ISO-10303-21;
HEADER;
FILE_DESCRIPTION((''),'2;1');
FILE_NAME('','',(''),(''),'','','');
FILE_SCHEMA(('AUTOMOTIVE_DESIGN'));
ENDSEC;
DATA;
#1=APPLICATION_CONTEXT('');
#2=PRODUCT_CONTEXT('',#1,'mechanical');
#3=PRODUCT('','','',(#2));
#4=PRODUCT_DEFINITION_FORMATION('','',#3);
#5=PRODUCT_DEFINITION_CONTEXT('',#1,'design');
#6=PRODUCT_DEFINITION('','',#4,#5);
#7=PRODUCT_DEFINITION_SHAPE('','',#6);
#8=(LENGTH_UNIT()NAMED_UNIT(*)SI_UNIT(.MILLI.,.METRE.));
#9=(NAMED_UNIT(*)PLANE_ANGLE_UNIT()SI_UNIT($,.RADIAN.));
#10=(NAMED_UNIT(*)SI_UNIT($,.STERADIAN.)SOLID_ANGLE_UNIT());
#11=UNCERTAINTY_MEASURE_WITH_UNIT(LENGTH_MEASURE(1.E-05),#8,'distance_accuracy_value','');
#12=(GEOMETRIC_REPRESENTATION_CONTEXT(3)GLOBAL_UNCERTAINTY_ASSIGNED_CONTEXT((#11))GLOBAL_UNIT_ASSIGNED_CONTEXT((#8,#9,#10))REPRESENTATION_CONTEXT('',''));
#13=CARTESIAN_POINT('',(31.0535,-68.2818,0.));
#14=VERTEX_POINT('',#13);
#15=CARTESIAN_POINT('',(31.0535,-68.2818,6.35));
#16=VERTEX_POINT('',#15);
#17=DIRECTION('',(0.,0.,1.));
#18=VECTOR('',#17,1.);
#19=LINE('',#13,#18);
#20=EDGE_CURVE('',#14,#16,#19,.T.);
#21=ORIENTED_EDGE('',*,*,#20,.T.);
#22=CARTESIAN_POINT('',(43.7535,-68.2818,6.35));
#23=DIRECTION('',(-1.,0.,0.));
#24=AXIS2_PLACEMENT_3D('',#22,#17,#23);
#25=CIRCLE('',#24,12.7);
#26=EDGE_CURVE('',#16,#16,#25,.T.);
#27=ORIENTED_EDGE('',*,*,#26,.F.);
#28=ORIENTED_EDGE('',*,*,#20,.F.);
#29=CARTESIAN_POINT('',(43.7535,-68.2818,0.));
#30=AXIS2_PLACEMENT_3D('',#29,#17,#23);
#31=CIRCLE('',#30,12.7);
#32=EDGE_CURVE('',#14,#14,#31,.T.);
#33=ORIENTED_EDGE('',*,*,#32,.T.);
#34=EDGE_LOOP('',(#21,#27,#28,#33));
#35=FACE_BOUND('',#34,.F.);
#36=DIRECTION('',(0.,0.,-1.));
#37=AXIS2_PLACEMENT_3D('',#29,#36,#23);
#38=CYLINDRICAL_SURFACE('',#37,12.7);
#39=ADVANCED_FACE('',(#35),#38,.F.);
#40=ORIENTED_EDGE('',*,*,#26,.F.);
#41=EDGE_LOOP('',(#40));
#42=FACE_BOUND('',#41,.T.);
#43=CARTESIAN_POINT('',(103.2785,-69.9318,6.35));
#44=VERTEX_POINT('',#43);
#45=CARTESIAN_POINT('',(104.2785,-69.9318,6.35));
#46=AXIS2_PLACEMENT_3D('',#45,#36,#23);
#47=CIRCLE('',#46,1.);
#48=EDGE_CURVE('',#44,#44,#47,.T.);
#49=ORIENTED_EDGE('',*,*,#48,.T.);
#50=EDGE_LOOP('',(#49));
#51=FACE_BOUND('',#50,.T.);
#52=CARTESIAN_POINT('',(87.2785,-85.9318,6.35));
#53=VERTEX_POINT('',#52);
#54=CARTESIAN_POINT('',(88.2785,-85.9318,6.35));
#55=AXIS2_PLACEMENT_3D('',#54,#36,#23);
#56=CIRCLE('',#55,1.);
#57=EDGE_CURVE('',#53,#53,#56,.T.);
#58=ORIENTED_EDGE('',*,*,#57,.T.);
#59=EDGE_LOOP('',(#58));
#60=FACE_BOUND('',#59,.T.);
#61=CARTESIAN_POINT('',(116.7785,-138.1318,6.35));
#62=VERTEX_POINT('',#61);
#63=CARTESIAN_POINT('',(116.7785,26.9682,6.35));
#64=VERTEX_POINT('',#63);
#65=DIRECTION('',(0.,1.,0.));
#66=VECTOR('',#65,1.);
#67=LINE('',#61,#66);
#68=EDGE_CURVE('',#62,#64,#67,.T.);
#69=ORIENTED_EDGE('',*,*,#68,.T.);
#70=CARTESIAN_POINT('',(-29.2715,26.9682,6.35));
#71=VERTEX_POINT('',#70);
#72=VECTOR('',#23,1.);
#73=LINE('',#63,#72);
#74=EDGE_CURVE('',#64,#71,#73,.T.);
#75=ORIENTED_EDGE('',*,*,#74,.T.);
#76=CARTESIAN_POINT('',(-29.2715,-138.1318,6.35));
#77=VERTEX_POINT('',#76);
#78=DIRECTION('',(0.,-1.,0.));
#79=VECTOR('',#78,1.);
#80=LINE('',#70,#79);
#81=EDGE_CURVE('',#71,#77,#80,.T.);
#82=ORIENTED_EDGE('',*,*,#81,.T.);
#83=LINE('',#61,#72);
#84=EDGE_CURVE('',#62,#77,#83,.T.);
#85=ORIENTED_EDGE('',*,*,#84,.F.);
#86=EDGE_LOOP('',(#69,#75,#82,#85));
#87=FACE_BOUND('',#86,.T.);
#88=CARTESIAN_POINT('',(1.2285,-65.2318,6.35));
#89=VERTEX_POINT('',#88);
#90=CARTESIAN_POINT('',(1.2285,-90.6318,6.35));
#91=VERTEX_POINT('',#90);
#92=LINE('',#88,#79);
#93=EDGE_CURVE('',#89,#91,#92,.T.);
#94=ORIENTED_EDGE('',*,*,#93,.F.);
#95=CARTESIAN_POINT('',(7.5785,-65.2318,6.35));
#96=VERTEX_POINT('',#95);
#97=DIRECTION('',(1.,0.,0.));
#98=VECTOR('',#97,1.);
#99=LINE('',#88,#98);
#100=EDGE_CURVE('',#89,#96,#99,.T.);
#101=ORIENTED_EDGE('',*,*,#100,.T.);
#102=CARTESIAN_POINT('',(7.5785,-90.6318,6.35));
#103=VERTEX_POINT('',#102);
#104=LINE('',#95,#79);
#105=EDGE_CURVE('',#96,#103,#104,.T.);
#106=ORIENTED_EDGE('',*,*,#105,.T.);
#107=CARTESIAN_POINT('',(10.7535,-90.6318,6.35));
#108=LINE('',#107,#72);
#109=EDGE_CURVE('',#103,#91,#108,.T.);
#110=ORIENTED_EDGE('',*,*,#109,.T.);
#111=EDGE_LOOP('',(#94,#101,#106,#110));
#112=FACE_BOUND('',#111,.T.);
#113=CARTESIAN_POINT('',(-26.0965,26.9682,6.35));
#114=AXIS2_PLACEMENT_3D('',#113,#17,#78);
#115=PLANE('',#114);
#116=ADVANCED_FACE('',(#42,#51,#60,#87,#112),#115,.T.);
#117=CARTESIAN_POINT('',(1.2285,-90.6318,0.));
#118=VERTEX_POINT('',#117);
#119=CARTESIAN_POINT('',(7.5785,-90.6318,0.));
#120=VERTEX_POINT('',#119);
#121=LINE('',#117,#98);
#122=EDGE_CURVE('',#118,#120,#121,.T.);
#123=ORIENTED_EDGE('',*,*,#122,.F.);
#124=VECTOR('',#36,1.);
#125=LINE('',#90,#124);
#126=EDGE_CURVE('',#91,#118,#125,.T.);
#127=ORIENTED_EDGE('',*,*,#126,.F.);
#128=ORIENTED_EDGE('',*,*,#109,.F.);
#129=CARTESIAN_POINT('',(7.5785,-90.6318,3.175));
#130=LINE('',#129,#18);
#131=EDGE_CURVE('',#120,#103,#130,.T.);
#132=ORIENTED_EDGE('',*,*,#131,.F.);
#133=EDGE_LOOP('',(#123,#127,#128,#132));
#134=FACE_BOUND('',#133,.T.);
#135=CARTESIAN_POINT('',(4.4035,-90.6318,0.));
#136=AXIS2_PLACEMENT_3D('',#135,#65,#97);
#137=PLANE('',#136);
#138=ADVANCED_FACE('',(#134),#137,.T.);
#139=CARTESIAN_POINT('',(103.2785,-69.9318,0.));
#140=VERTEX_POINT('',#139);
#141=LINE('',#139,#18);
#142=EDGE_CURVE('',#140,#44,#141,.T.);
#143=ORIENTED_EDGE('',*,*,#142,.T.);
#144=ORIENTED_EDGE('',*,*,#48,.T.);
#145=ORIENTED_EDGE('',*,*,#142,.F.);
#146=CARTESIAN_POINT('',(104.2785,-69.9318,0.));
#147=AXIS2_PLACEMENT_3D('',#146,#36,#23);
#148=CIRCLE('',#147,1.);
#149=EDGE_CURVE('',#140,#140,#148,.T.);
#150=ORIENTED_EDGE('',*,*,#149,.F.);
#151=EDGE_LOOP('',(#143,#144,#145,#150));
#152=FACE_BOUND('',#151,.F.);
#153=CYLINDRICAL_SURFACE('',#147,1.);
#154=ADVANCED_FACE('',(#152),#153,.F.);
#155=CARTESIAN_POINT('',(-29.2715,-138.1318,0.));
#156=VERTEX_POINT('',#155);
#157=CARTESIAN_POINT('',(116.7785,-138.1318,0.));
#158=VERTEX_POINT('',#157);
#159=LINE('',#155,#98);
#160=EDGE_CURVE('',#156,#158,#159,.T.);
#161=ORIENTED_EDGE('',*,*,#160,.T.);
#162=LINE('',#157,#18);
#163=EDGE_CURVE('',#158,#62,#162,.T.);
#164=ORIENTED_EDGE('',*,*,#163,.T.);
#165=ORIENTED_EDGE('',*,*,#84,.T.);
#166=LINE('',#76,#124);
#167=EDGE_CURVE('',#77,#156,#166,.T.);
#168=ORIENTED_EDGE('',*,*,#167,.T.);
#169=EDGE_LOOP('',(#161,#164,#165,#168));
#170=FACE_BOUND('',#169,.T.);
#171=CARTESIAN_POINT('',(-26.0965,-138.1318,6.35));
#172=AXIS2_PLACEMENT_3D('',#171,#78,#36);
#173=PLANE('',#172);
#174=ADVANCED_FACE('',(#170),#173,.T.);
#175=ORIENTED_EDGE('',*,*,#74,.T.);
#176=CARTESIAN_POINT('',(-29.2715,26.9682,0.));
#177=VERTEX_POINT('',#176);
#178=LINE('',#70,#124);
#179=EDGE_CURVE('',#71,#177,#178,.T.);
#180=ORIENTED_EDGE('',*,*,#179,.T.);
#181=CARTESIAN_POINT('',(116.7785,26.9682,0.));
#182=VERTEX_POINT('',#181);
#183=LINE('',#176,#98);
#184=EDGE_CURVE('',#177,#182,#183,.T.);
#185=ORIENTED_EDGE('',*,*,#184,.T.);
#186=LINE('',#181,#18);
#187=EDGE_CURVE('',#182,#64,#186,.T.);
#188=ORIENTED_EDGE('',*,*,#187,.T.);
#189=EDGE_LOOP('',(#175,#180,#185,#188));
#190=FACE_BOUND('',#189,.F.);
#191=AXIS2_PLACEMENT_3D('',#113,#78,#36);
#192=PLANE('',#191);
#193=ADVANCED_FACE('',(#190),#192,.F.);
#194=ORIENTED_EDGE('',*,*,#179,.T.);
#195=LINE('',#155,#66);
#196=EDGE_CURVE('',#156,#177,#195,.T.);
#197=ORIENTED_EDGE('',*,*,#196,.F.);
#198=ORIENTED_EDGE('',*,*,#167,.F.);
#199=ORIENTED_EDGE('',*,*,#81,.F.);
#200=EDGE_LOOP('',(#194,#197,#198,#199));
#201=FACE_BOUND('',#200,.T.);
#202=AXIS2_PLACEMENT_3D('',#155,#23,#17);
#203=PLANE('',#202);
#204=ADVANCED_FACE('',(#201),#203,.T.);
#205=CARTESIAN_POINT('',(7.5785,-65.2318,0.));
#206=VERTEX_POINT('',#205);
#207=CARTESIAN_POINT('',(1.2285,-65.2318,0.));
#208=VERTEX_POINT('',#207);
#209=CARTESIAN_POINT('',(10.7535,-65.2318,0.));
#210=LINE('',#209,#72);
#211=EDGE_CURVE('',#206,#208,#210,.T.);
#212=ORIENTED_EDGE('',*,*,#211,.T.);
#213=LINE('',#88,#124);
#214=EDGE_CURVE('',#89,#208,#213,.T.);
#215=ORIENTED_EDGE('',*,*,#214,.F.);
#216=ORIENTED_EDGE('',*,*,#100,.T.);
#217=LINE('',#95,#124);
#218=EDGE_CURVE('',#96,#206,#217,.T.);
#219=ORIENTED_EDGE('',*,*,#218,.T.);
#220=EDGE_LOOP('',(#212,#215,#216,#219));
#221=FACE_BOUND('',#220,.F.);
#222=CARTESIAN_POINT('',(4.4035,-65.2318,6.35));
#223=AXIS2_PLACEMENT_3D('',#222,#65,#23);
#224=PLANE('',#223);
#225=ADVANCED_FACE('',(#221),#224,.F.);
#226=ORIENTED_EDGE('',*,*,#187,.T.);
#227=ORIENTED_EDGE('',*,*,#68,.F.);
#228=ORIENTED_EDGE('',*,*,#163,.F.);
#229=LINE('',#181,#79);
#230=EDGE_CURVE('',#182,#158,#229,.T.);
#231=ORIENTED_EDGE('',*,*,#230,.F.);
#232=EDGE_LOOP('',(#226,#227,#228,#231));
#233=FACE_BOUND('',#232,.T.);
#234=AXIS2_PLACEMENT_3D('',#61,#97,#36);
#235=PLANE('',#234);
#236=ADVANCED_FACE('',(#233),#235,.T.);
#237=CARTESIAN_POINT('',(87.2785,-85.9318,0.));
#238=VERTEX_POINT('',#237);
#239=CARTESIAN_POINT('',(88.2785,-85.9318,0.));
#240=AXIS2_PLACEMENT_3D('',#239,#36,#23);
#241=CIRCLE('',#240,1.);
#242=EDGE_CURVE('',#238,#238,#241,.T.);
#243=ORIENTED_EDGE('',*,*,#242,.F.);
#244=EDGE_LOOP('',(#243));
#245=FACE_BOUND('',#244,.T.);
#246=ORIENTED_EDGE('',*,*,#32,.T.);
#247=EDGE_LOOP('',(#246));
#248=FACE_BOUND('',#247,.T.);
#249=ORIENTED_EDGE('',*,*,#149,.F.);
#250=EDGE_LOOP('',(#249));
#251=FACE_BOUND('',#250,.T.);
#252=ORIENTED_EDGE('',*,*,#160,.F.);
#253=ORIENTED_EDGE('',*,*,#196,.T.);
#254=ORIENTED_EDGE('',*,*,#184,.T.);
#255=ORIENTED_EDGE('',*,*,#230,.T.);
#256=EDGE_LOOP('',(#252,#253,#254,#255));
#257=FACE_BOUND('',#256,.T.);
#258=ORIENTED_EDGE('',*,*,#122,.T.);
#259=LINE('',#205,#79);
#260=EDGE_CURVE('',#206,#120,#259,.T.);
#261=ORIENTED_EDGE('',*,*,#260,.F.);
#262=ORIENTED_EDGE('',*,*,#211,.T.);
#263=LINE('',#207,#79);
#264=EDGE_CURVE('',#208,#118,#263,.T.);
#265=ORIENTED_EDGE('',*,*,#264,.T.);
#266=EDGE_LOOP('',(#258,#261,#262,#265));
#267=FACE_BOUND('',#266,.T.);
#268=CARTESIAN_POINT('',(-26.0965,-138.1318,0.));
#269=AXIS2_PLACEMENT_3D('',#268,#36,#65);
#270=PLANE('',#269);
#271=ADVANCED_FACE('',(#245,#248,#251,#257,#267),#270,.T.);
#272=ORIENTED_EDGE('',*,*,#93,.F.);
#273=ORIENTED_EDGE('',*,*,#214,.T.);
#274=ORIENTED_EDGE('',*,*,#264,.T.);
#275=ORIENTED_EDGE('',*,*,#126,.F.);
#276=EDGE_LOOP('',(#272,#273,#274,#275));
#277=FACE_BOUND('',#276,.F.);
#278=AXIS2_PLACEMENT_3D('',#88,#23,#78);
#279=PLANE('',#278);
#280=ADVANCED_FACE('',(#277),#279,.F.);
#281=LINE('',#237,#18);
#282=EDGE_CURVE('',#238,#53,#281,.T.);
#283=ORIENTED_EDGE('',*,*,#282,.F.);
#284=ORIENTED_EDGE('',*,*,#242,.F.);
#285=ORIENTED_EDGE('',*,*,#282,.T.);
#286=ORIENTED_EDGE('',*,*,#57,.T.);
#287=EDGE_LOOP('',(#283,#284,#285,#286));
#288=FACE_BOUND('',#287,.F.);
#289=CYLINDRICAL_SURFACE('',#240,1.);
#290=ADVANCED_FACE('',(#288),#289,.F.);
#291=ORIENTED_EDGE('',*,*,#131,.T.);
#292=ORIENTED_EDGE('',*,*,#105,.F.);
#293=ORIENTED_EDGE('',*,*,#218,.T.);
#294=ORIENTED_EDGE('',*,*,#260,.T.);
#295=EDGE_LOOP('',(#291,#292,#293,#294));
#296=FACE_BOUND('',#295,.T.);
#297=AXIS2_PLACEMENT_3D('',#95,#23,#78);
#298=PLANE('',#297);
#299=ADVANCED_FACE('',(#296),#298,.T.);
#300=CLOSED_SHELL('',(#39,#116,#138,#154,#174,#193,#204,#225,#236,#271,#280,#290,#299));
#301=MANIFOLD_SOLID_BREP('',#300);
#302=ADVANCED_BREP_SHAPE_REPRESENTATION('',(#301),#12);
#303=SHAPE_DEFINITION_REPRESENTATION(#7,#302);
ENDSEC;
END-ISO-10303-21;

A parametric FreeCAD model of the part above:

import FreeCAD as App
import Part
import Sketcher

V = App.Vector
Q = App.Units.Quantity


def add_polygon(sketch, points):
    """Adds a closed chain of lines whose ends are joined by coincident constraints."""
    first, n = sketch.GeometryCount, len(points)
    for a, b in zip(points, points[1:] + points[:1]):
        sketch.addGeometry(Part.LineSegment(App.Vector(*a, 0), App.Vector(*b, 0)), False)
    for i in range(n):
        sketch.addConstraint(Sketcher.Constraint("Coincident", first + i, 2, first + (i + 1) % n, 1))

doc = App.newDocument("Part")
body = doc.addObject("PartDesign::Body", "Body")

# Sketch on XY plane
sketch1 = body.newObject("Sketcher::SketchObject", "Sketch")
sketch1.AttachmentSupport = (doc.getObject("XY_Plane"), [""])
sketch1.MapMode = "FlatFace"
add_polygon(sketch1, [(107, 14), (-20, 14), (-20, -113), (107, -113)])  # lines 0-3
sketch1.addConstraint([
    Sketcher.Constraint("Horizontal", 0),
    Sketcher.Constraint("Vertical", 1),
    Sketcher.Constraint("Horizontal", 2),
    Sketcher.Constraint("Vertical", 3),
    Sketcher.Constraint("Equal", 2, 1),
    Sketcher.Constraint("DistanceX", 0, 2, 0, 1, Q("5 in")),
    Sketcher.Constraint("DistanceX", 0, 2, -1, 1, Q("19.7465 mm")),
    Sketcher.Constraint("DistanceY", -1, 1, 0, 2, Q("14.2682 mm")),
])
pad1 = body.newObject("PartDesign::Pad", "Pad")
pad1.Profile = sketch1
pad1.Length = Q("0.25 in")

# Sketch on XY plane
sketch2 = body.newObject("Sketcher::SketchObject", "Sketch001")
sketch2.AttachmentSupport = (doc.getObject("XY_Plane"), [""])
sketch2.MapMode = "FlatFace"
sketch2.AttachmentOffset = App.Placement(V(0, 0, 0.25 * 25.4), App.Rotation())
add_polygon(sketch2, [(113, -62), (73, -62), (73, -94), (113, -94)])  # lines 0-3
sketch2.addConstraint([
    Sketcher.Constraint("Horizontal", 0),
    Sketcher.Constraint("Vertical", 1),
    Sketcher.Constraint("Horizontal", 2),
    Sketcher.Constraint("Vertical", 3),
    Sketcher.Constraint("DistanceX", 0, 2, 0, 1, Q("1.5748 in")),
    Sketcher.Constraint("DistanceY", 1, 2, 1, 1, Q("32 mm")),
    Sketcher.Constraint("DistanceX", -1, 1, 0, 2, Q("2.8781 in")),
    Sketcher.Constraint("DistanceY", 1, 2, -1, 1, Q("3.6981 in")),
])
pad2 = body.newObject("PartDesign::Pad", "Pad001")
pad2.Profile = sketch2
pad2.Length = Q("0.25 in")

# Sketch on YZ plane
sketch3 = body.newObject("Sketcher::SketchObject", "Sketch002")
sketch3.AttachmentSupport = (doc.getObject("YZ_Plane"), [""])
sketch3.MapMode = "FlatFace"
sketch3.AttachmentOffset = App.Placement(V(0, 0, 107.2535), App.Rotation())
add_polygon(sketch3, [(14, 0), (14, 6), (-113, 6), (-113, 0)])  # lines 0-3
sketch3.addConstraint([
    Sketcher.Constraint("Vertical", 0),
    Sketcher.Constraint("Horizontal", 1),
    Sketcher.Constraint("Vertical", 2),
    Sketcher.Constraint("Horizontal", 3),
    Sketcher.Constraint("PointOnObject", 2, 2, -1),
    Sketcher.Constraint("DistanceX", 1, 2, 1, 1, Q("5 in")),
    Sketcher.Constraint("DistanceY", 0, 1, 0, 2, Q("0.25 in")),
    Sketcher.Constraint("DistanceX", -1, 1, 0, 2, Q("14.2682 mm")),
])
pad3 = body.newObject("PartDesign::Pad", "Pad002")
pad3.Profile = sketch3
pad3.Length = Q("0.5 in")

# Sketch on YZ plane
sketch4 = body.newObject("Sketcher::SketchObject", "Sketch003")
sketch4.AttachmentSupport = (doc.getObject("YZ_Plane"), [""])
sketch4.MapMode = "FlatFace"
sketch4.AttachmentOffset = App.Placement(V(0, 0, -19.7465), App.Rotation())
add_polygon(sketch4, [(-113, 0), (-113, 6), (14, 6), (14, 0)])  # lines 0-3
sketch4.addConstraint([
    Sketcher.Constraint("Vertical", 0),
    Sketcher.Constraint("Horizontal", 1),
    Sketcher.Constraint("Vertical", 2),
    Sketcher.Constraint("Horizontal", 3),
    Sketcher.Constraint("PointOnObject", 2, 2, -1),
    Sketcher.Constraint("DistanceX", 1, 1, 1, 2, Q("5 in")),
    Sketcher.Constraint("DistanceY", 0, 1, 0, 2, Q("0.25 in")),
    Sketcher.Constraint("DistanceX", 0, 2, -1, 1, Q("112.7318 mm")),
])
pad4 = body.newObject("PartDesign::Pad", "Pad003")
pad4.Profile = sketch4
pad4.Length = Q("0.5 in")
pad4.Reversed = True

# Sketch on XY plane
sketch5 = body.newObject("Sketcher::SketchObject", "Sketch004")
sketch5.AttachmentSupport = (doc.getObject("XY_Plane"), [""])
sketch5.MapMode = "FlatFace"
sketch5.AttachmentOffset = App.Placement(V(0, 0, 0.25 * 25.4), App.Rotation())
add_polygon(sketch5, [(14, -87), (14, -62), (8, -62), (8, -87)])  # lines 0-3
sketch5.addConstraint([
    Sketcher.Constraint("Vertical", 0),
    Sketcher.Constraint("Horizontal", 1),
    Sketcher.Constraint("Vertical", 2),
    Sketcher.Constraint("Horizontal", 3),
    Sketcher.Constraint("DistanceY", 0, 1, 0, 2, Q("1 in")),
    Sketcher.Constraint("DistanceX", 1, 2, 1, 1, Q("0.25 in")),
    Sketcher.Constraint("DistanceX", -1, 1, 0, 2, Q("14.4035 mm")),
    Sketcher.Constraint("DistanceY", 0, 2, -1, 1, Q("61.9318 mm")),
])
pocket1 = body.newObject("PartDesign::Pocket", "Pocket")
pocket1.Profile = sketch5
pocket1.Length = Q("0.5 in")

# Sketch on XY plane
sketch6 = body.newObject("Sketcher::SketchObject", "Sketch005")
sketch6.AttachmentSupport = (doc.getObject("XY_Plane"), [""])
sketch6.MapMode = "FlatFace"
sketch6.AttachmentOffset = App.Placement(V(0, 0, 0.25 * 25.4), App.Rotation())
add_polygon(sketch6, [(113, -94), (120, -94), (120, -62), (113, -62)])  # lines 0-3
sketch6.addConstraint([
    Sketcher.Constraint("Horizontal", 0),
    Sketcher.Constraint("Vertical", 1),
    Sketcher.Constraint("Horizontal", 2),
    Sketcher.Constraint("Vertical", 3),
    Sketcher.Constraint("DistanceX", 0, 1, 0, 2, Q("6.85 mm")),
    Sketcher.Constraint("DistanceY", 1, 1, 1, 2, Q("32 mm")),
    Sketcher.Constraint("DistanceY", 0, 2, -1, 1, Q("3.6981 in")),
    Sketcher.Constraint("DistanceX", -1, 1, 2, 2, Q("4.4529 in")),
])
pocket2 = body.newObject("PartDesign::Pocket", "Pocket001")
pocket2.Profile = sketch6
pocket2.Length = Q("0.5 in")

# Sketch on XY plane
sketch7 = body.newObject("Sketcher::SketchObject", "Sketch006")
sketch7.AttachmentSupport = (doc.getObject("XY_Plane"), [""])
sketch7.MapMode = "FlatFace"
sketch7.AttachmentOffset = App.Placement(V(0, 0, 0.5 * 25.4), App.Rotation())
add_polygon(sketch7, [(113, -62), (73, -62), (73, -94), (113, -94)])  # lines 0-3
sketch7.addConstraint([
    Sketcher.Constraint("Horizontal", 0),
    Sketcher.Constraint("Vertical", 1),
    Sketcher.Constraint("Horizontal", 2),
    Sketcher.Constraint("Vertical", 3),
    Sketcher.Constraint("DistanceX", 0, 2, 0, 1, Q("1.5748 in")),
    Sketcher.Constraint("DistanceY", 1, 2, 1, 1, Q("32 mm")),
    Sketcher.Constraint("DistanceX", -1, 1, 0, 2, Q("2.8781 in")),
    Sketcher.Constraint("DistanceY", 1, 2, -1, 1, Q("3.6981 in")),
])
pocket3 = body.newObject("PartDesign::Pocket", "Pocket002")
pocket3.Profile = sketch7
pocket3.Length = Q("0.25 in")

# Sketch on XY plane
sketch8 = body.newObject("Sketcher::SketchObject", "Sketch007")
sketch8.AttachmentSupport = (doc.getObject("XY_Plane"), [""])
sketch8.MapMode = "FlatFace"
sketch8.AttachmentOffset = App.Placement(V(0, 0, 0.25 * 25.4), App.Rotation())
add_polygon(sketch8, [(8.1, -87.3), (8.1, -61.9), (4.4, -61.9), (4.4, -87.3)])  # lines 0-3
sketch8.addConstraint([
    Sketcher.Constraint("Vertical", 0),
    Sketcher.Constraint("Horizontal", 1),
    Sketcher.Constraint("Vertical", 2),
    Sketcher.Constraint("Horizontal", 3),
    Sketcher.Constraint("DistanceY", 0, 1, 0, 2, Q("1 in")),
    Sketcher.Constraint("DistanceX", 1, 2, 1, 1, Q("0.1437 in")),
    Sketcher.Constraint("DistanceX", -1, 1, 0, 2, Q("8.0535 mm")),
    Sketcher.Constraint("DistanceY", 0, 2, -1, 1, Q("61.9318 mm")),
])
pocket4 = body.newObject("PartDesign::Pocket", "Pocket003")
pocket4.Profile = sketch8
pocket4.Length = Q("0.25 in")

# Sketch on XY plane
sketch9 = body.newObject("Sketcher::SketchObject", "Sketch008")
sketch9.AttachmentSupport = (doc.getObject("XY_Plane"), [""])
sketch9.MapMode = "FlatFace"
sketch9.AttachmentOffset = App.Placement(V(0, 0, 0.25 * 25.4), App.Rotation())
add_polygon(sketch9, [(14.4, -61.9), (10.8, -61.9), (10.8, -87.3), (14.4, -87.3)])  # lines 0-3
sketch9.addConstraint([
    Sketcher.Constraint("Horizontal", 0),
    Sketcher.Constraint("Vertical", 1),
    Sketcher.Constraint("Horizontal", 2),
    Sketcher.Constraint("Vertical", 3),
    Sketcher.Constraint("DistanceY", 1, 2, 1, 1, Q("1 in")),
    Sketcher.Constraint("DistanceX", 0, 2, 0, 1, Q("0.1437 in")),
    Sketcher.Constraint("DistanceX", -1, 1, 0, 2, Q("10.7535 mm")),
    Sketcher.Constraint("DistanceY", 0, 2, -1, 1, Q("61.9318 mm")),
])
pad5 = body.newObject("PartDesign::Pad", "Pad004")
pad5.Profile = sketch9
pad5.Length = Q("0.25 in")
pad5.Reversed = True

# Sketch on XY plane
sketch10 = body.newObject("Sketcher::SketchObject", "Sketch009")
sketch10.AttachmentSupport = (doc.getObject("XY_Plane"), [""])
sketch10.MapMode = "FlatFace"
sketch10.addGeometry([
    Part.Circle(V(101.1, -69.9, 0), V(0, 0, 1), 1),
    Part.Circle(V(85.1, -85.9, 0), V(0, 0, 1), 1),
], False)
sketch10.addConstraint([
    Sketcher.Constraint("Equal", 0, 1),
    Sketcher.Constraint("Diameter", 0, Q("2 mm")),
    Sketcher.Constraint("DistanceX", 1, 3, 0, 3, Q("16 mm")),
    Sketcher.Constraint("DistanceY", 1, 3, 0, 3, Q("16 mm")),
    Sketcher.Constraint("DistanceX", -1, 1, 0, 3, Q("101.1035 mm")),
    Sketcher.Constraint("DistanceY", 0, 3, -1, 1, Q("69.9318 mm")),
])
pocket5 = body.newObject("PartDesign::Pocket", "Pocket004")
pocket5.Profile = sketch10
pocket5.Length = Q("0.25 in")
pocket5.Reversed = True

# Sketch on YZ plane
sketch11 = body.newObject("Sketcher::SketchObject", "Sketch010")
sketch11.AttachmentSupport = (doc.getObject("YZ_Plane"), [""])
sketch11.MapMode = "FlatFace"
sketch11.AttachmentOffset = App.Placement(V(0, 0, 4.4528937 * 25.4), App.Rotation())
add_polygon(sketch11, [(-62, 0), (-62, 6), (-94, 6), (-94, 0)])  # lines 0-3
sketch11.addConstraint([
    Sketcher.Constraint("Vertical", 0),
    Sketcher.Constraint("Horizontal", 1),
    Sketcher.Constraint("Vertical", 2),
    Sketcher.Constraint("Horizontal", 3),
    Sketcher.Constraint("PointOnObject", 2, 2, -1),
    Sketcher.Constraint("DistanceY", 0, 1, 0, 2, Q("0.25 in")),
    Sketcher.Constraint("DistanceX", 1, 2, 1, 1, Q("32 mm")),
    Sketcher.Constraint("DistanceX", 1, 2, -1, 1, Q("3.6981 in")),
])
pad6 = body.newObject("PartDesign::Pad", "Pad005")
pad6.Profile = sketch11
pad6.Length = Q("0.3 in")

# Sketch on YZ plane
sketch12 = body.newObject("Sketcher::SketchObject", "Sketch011")
sketch12.AttachmentSupport = (doc.getObject("YZ_Plane"), [""])
sketch12.MapMode = "FlatFace"
sketch12.AttachmentOffset = App.Placement(V(0, 0, 119.9535), App.Rotation())
add_polygon(sketch12, [(-62, 0), (-62, 6), (-101, 6), (-101, 0)])  # lines 0-3
sketch12.addConstraint([
    Sketcher.Constraint("Vertical", 0),
    Sketcher.Constraint("Horizontal", 1),
    Sketcher.Constraint("Vertical", 2),
    Sketcher.Constraint("Horizontal", 3),
    Sketcher.Constraint("PointOnObject", 2, 2, -1),
    Sketcher.Constraint("DistanceY", 0, 1, 0, 2, Q("0.25 in")),
    Sketcher.Constraint("DistanceX", 1, 2, 1, 1, Q("39.489 mm")),
    Sketcher.Constraint("DistanceX", 0, 2, -1, 1, Q("61.9318 mm")),
])
pocket6 = body.newObject("PartDesign::Pocket", "Pocket005")
pocket6.Profile = sketch12
pocket6.Length = Q("0.3 in")
pocket6.Reversed = True

# Sketch on XY plane
sketch13 = body.newObject("Sketcher::SketchObject", "Sketch012")
sketch13.AttachmentSupport = (doc.getObject("XY_Plane"), [""])
sketch13.MapMode = "FlatFace"
add_polygon(sketch13, [(4.4, -87.3), (10.8, -87.3), (10.8, -90.6), (4.4, -90.6)])  # lines 0-3
sketch13.addConstraint([
    Sketcher.Constraint("Horizontal", 0),
    Sketcher.Constraint("Vertical", 1),
    Sketcher.Constraint("Horizontal", 2),
    Sketcher.Constraint("Vertical", 3),
    Sketcher.Constraint("DistanceX", 0, 1, 0, 2, Q("0.25 in")),
    Sketcher.Constraint("DistanceY", 1, 2, 1, 1, Q("3.3 mm")),
    Sketcher.Constraint("DistanceX", -1, 1, 0, 2, Q("10.7535 mm")),
    Sketcher.Constraint("DistanceY", 0, 2, -1, 1, Q("87.3318 mm")),
])
pocket7 = body.newObject("PartDesign::Pocket", "Pocket006")
pocket7.Profile = sketch13
pocket7.Length = Q("0.3 in")
pocket7.Reversed = True

# Sketch on XY plane
sketch14 = body.newObject("Sketcher::SketchObject", "Sketch013")
sketch14.AttachmentSupport = (doc.getObject("XY_Plane"), [""])
sketch14.MapMode = "FlatFace"
add_polygon(sketch14, [(4.4, -65.2), (4.4, -61.9), (10.8, -61.9), (10.8, -65.2)])  # lines 0-3
sketch14.addConstraint([
    Sketcher.Constraint("Vertical", 0),
    Sketcher.Constraint("Horizontal", 1),
    Sketcher.Constraint("Vertical", 2),
    Sketcher.Constraint("Horizontal", 3),
    Sketcher.Constraint("DistanceX", 1, 1, 1, 2, Q("0.25 in")),
    Sketcher.Constraint("DistanceY", 0, 1, 0, 2, Q("3.3 mm")),
    Sketcher.Constraint("DistanceX", -1, 1, 0, 2, Q("4.4035 mm")),
    Sketcher.Constraint("DistanceY", 0, 2, -1, 1, Q("61.9318 mm")),
])
pad7 = body.newObject("PartDesign::Pad", "Pad006")
pad7.Profile = sketch14
pad7.Length = Q("0.3 in")

# Sketch on XY plane
sketch15 = body.newObject("Sketcher::SketchObject", "Sketch014")
sketch15.AttachmentSupport = (doc.getObject("XY_Plane"), [""])
sketch15.MapMode = "FlatFace"
sketch15.AttachmentOffset = App.Placement(V(0, 0, 0.3 * 25.4), App.Rotation())
add_polygon(sketch15, [(4.4, -65.2), (10.8, -65.2), (10.8, -61.9), (4.4, -61.9)])  # lines 0-3
sketch15.addConstraint([
    Sketcher.Constraint("Horizontal", 0),
    Sketcher.Constraint("Vertical", 1),
    Sketcher.Constraint("Horizontal", 2),
    Sketcher.Constraint("Vertical", 3),
    Sketcher.Constraint("DistanceX", 0, 1, 0, 2, Q("0.25 in")),
    Sketcher.Constraint("DistanceY", 1, 1, 1, 2, Q("3.3 mm")),
    Sketcher.Constraint("DistanceX", -1, 1, 0, 2, Q("10.7535 mm")),
    Sketcher.Constraint("DistanceY", 0, 2, -1, 1, Q("65.2318 mm")),
])
pocket8 = body.newObject("PartDesign::Pocket", "Pocket007")
pocket8.Profile = sketch15
pocket8.Length = Q("0.05 in")

# Sketch on XZ plane
sketch16 = body.newObject("Sketcher::SketchObject", "Sketch015")
sketch16.AttachmentSupport = (doc.getObject("XZ_Plane"), [""])
sketch16.MapMode = "FlatFace"
sketch16.AttachmentOffset = App.Placement(V(0, 0, 112.7318), App.Rotation())
add_polygon(sketch16, [(120, 0), (120, 6), (-32, 6), (-32, 0)])  # lines 0-3
sketch16.addConstraint([
    Sketcher.Constraint("Vertical", 0),
    Sketcher.Constraint("Horizontal", 1),
    Sketcher.Constraint("Vertical", 2),
    Sketcher.Constraint("Horizontal", 3),
    Sketcher.Constraint("PointOnObject", 2, 2, -1),
    Sketcher.Constraint("DistanceX", 1, 2, 1, 1, Q("6 in")),
    Sketcher.Constraint("DistanceY", 0, 1, 0, 2, Q("0.25 in")),
    Sketcher.Constraint("DistanceX", -1, 1, 0, 2, Q("119.9535 mm")),
])
pad8 = body.newObject("PartDesign::Pad", "Pad007")
pad8.Profile = sketch16
pad8.Length = Q("1 in")

# Sketch on XZ plane
sketch17 = body.newObject("Sketcher::SketchObject", "Sketch016")
sketch17.AttachmentSupport = (doc.getObject("XZ_Plane"), [""])
sketch17.MapMode = "FlatFace"
sketch17.AttachmentOffset = App.Placement(V(0, 0, -14.2682), App.Rotation())
add_polygon(sketch17, [(-32, 0), (-32, 6), (-26, 6), (-26, 0)])  # lines 0-3
add_polygon(sketch17, [(114, 0), (114, 6), (120, 6), (120, 0)])  # lines 4-7
sketch17.addConstraint([
    Sketcher.Constraint("Vertical", 0),
    Sketcher.Constraint("Horizontal", 1),
    Sketcher.Constraint("Vertical", 2),
    Sketcher.Constraint("Horizontal", 3),
    Sketcher.Constraint("Vertical", 4),
    Sketcher.Constraint("Horizontal", 5),
    Sketcher.Constraint("Vertical", 6),
    Sketcher.Constraint("Horizontal", 7),
    Sketcher.Constraint("PointOnObject", 2, 2, -1),
    Sketcher.Constraint("PointOnObject", 6, 2, -1),
    Sketcher.Constraint("Horizontal", 1, 2, 4, 2),
    Sketcher.Constraint("Equal", 3, 5),
    Sketcher.Constraint("Equal", 7, 0),
    Sketcher.Constraint("DistanceX", 1, 1, 1, 2, Q("0.25 in")),
    Sketcher.Constraint("DistanceX", 0, 2, 5, 2, Q("6 in")),
    Sketcher.Constraint("DistanceX", 0, 2, -1, 1, Q("32.4465 mm")),
])
pocket9 = body.newObject("PartDesign::Pocket", "Pocket008")
pocket9.Profile = sketch17
pocket9.Length = Q("7 in")
pocket9.Reversed = True

# Sketch on XY plane
sketch18 = body.newObject("Sketcher::SketchObject", "Sketch017")
sketch18.AttachmentSupport = (doc.getObject("XY_Plane"), [""])
sketch18.MapMode = "FlatFace"
sketch18.addGeometry(Part.Circle(V(44, -113, 0), V(0, 0, 1), 13), False)
sketch18.addConstraint([
    Sketcher.Constraint("Diameter", 0, Q("1 in")),
    Sketcher.Constraint("DistanceX", -1, 1, 0, 3, Q("43.7535 mm")),
    Sketcher.Constraint("DistanceY", 0, 3, -1, 1, Q("112.7318 mm")),
])
pocket10 = body.newObject("PartDesign::Pocket", "Pocket009")
pocket10.Profile = sketch18
pocket10.Length = Q("1 in")
pocket10.Reversed = True

# Sketch on XY plane
sketch19 = body.newObject("Sketcher::SketchObject", "Sketch018")
sketch19.AttachmentSupport = (doc.getObject("XY_Plane"), [""])
sketch19.MapMode = "FlatFace"
sketch19.addGeometry(Part.Circle(V(44, -68, 0), V(0, 0, 1), 13), False)
sketch19.addConstraint([
    Sketcher.Constraint("Diameter", 0, Q("1 in")),
    Sketcher.Constraint("DistanceX", -1, 1, 0, 3, Q("43.7535 mm")),
    Sketcher.Constraint("DistanceY", 0, 3, -1, 1, Q("68.2818 mm")),
])
pocket11 = body.newObject("PartDesign::Pocket", "Pocket010")
pocket11.Profile = sketch19
pocket11.Length = Q("1 in")
pocket11.Reversed = True

# Sketch on XY plane
sketch20 = body.newObject("Sketcher::SketchObject", "Sketch019")
sketch20.AttachmentSupport = (doc.getObject("XY_Plane"), [""])
sketch20.MapMode = "FlatFace"
sketch20.addGeometry(Part.Circle(V(44, -113, 0), V(0, 0, 1), 13), False)
sketch20.addConstraint([
    Sketcher.Constraint("Diameter", 0, Q("1 in")),
    Sketcher.Constraint("DistanceX", -1, 1, 0, 3, Q("43.7535 mm")),
    Sketcher.Constraint("DistanceY", 0, 3, -1, 1, Q("112.7318 mm")),
])
pad9 = body.newObject("PartDesign::Pad", "Pad008")
pad9.Profile = sketch20
pad9.Length = Q("0.25 in")

# Sketch on XZ plane
sketch21 = body.newObject("Sketcher::SketchObject", "Sketch020")
sketch21.AttachmentSupport = (doc.getObject("XZ_Plane"), [""])
sketch21.MapMode = "FlatFace"
sketch21.AttachmentOffset = App.Placement(V(0, 0, -14.2682), App.Rotation())
add_polygon(sketch21, [(114, 0), (-26, 0), (-26, 6), (114, 6)])  # lines 0-3
sketch21.addConstraint([
    Sketcher.Constraint("Horizontal", 0),
    Sketcher.Constraint("Vertical", 1),
    Sketcher.Constraint("Horizontal", 2),
    Sketcher.Constraint("Vertical", 3),
    Sketcher.Constraint("PointOnObject", 0, 2, -1),
    Sketcher.Constraint("DistanceX", 0, 2, 0, 1, Q("5.5 in")),
    Sketcher.Constraint("DistanceY", 1, 1, 1, 2, Q("0.25 in")),
    Sketcher.Constraint("DistanceX", 0, 2, -1, 1, Q("26.0965 mm")),
])
pad10 = body.newObject("PartDesign::Pad", "Pad009")
pad10.Profile = sketch21
pad10.Length = Q("0.5 in")
pad10.Reversed = True

# Sketch on YZ plane
sketch22 = body.newObject("Sketcher::SketchObject", "Sketch021")
sketch22.AttachmentSupport = (doc.getObject("YZ_Plane"), [""])
sketch22.MapMode = "FlatFace"
sketch22.AttachmentOffset = App.Placement(V(0, 0, 113.6035), App.Rotation())
add_polygon(sketch22, [(-138, 6), (-138, 0), (27, 0), (27, 6)])  # lines 0-3
sketch22.addConstraint([
    Sketcher.Constraint("Vertical", 0),
    Sketcher.Constraint("Horizontal", 1),
    Sketcher.Constraint("Vertical", 2),
    Sketcher.Constraint("Horizontal", 3),
    Sketcher.Constraint("PointOnObject", 0, 2, -1),
    Sketcher.Constraint("DistanceX", 1, 1, 1, 2, Q("6.5 in")),
    Sketcher.Constraint("DistanceY", 0, 2, 0, 1, Q("0.25 in")),
    Sketcher.Constraint("DistanceX", 0, 2, -1, 1, Q("138.1318 mm")),
])
pad11 = body.newObject("PartDesign::Pad", "Pad010")
pad11.Profile = sketch22
pad11.Length = Q("0.125 in")

# Sketch on YZ plane
sketch23 = body.newObject("Sketcher::SketchObject", "Sketch022")
sketch23.AttachmentSupport = (doc.getObject("YZ_Plane"), [""])
sketch23.MapMode = "FlatFace"
sketch23.AttachmentOffset = App.Placement(V(0, 0, -26.0965), App.Rotation())
add_polygon(sketch23, [(-138, 0), (-138, 6), (27, 6), (27, 0)])  # lines 0-3
sketch23.addConstraint([
    Sketcher.Constraint("Vertical", 0),
    Sketcher.Constraint("Horizontal", 1),
    Sketcher.Constraint("Vertical", 2),
    Sketcher.Constraint("Horizontal", 3),
    Sketcher.Constraint("PointOnObject", 2, 2, -1),
    Sketcher.Constraint("DistanceX", 1, 1, 1, 2, Q("6.5 in")),
    Sketcher.Constraint("DistanceY", 0, 1, 0, 2, Q("0.25 in")),
    Sketcher.Constraint("DistanceX", 0, 2, -1, 1, Q("138.1318 mm")),
])
pad12 = body.newObject("PartDesign::Pad", "Pad011")
pad12.Profile = sketch23
pad12.Length = Q("0.125 in")
pad12.Reversed = True

# Sketch on XY plane
sketch24 = body.newObject("Sketcher::SketchObject", "Sketch023")
sketch24.AttachmentSupport = (doc.getObject("XY_Plane"), [""])
sketch24.MapMode = "FlatFace"
sketch24.AttachmentOffset = App.Placement(V(0, 0, 0.25 * 25.4), App.Rotation())
add_polygon(sketch24, [(4.4, -90.6), (4.4, -65.2), (1.2, -65.2), (1.2, -90.6)])  # lines 0-3
sketch24.addConstraint([
    Sketcher.Constraint("Vertical", 0),
    Sketcher.Constraint("Horizontal", 1),
    Sketcher.Constraint("Vertical", 2),
    Sketcher.Constraint("Horizontal", 3),
    Sketcher.Constraint("DistanceX", 1, 2, 1, 1, Q("0.125 in")),
    Sketcher.Constraint("DistanceY", 0, 1, 0, 2, Q("1 in")),
    Sketcher.Constraint("DistanceX", -1, 1, 0, 2, Q("4.4035 mm")),
    Sketcher.Constraint("DistanceY", 0, 2, -1, 1, Q("65.2318 mm")),
])
pocket12 = body.newObject("PartDesign::Pocket", "Pocket011")
pocket12.Profile = sketch24
pocket12.Length = Q("0.25 in")

# Sketch on XY plane
sketch25 = body.newObject("Sketcher::SketchObject", "Sketch024")
sketch25.AttachmentSupport = (doc.getObject("XY_Plane"), [""])
sketch25.MapMode = "FlatFace"
sketch25.AttachmentOffset = App.Placement(V(0, 0, 0.25 * 25.4), App.Rotation())
add_polygon(sketch25, [(10.8, -91.3), (10.8, -65.2), (7.6, -65.2), (7.6, -91.3)])  # lines 0-3
sketch25.addConstraint([
    Sketcher.Constraint("Vertical", 0),
    Sketcher.Constraint("Horizontal", 1),
    Sketcher.Constraint("Vertical", 2),
    Sketcher.Constraint("Horizontal", 3),
    Sketcher.Constraint("DistanceX", 1, 2, 1, 1, Q("0.125 in")),
    Sketcher.Constraint("DistanceY", 0, 1, 0, 2, Q("26.088 mm")),
    Sketcher.Constraint("DistanceX", -1, 1, 0, 2, Q("10.7535 mm")),
    Sketcher.Constraint("DistanceY", 0, 2, -1, 1, Q("65.2318 mm")),
])
pad13 = body.newObject("PartDesign::Pad", "Pad012")
pad13.Profile = sketch25
pad13.Length = Q("0.25 in")
pad13.Reversed = True

# Sketch on XY plane
sketch26 = body.newObject("Sketcher::SketchObject", "Sketch025")
sketch26.AttachmentSupport = (doc.getObject("XY_Plane"), [""])
sketch26.MapMode = "FlatFace"
sketch26.addGeometry([
    Part.Circle(V(104.3, -69.9, 0), V(0, 0, 1), 1),
    Part.Circle(V(88.3, -85.9, 0), V(0, 0, 1), 1),
], False)
sketch26.addConstraint([
    Sketcher.Constraint("Equal", 0, 1),
    Sketcher.Constraint("Diameter", 0, Q("2 mm")),
    Sketcher.Constraint("DistanceX", -1, 1, 0, 3, Q("104.2785 mm")),
    Sketcher.Constraint("DistanceY", 0, 3, -1, 1, Q("69.9318 mm")),
    Sketcher.Constraint("DistanceX", -1, 1, 1, 3, Q("88.2785 mm")),
    Sketcher.Constraint("DistanceY", 1, 3, -1, 1, Q("85.9318 mm")),
])
pocket13 = body.newObject("PartDesign::Pocket", "Pocket012")
pocket13.Profile = sketch26
pocket13.Length = Q("0.25 in")
pocket13.Reversed = True

# Sketch on XY plane
sketch27 = body.newObject("Sketcher::SketchObject", "Sketch026")
sketch27.AttachmentSupport = (doc.getObject("XY_Plane"), [""])
sketch27.MapMode = "FlatFace"
sketch27.addGeometry([
    Part.Circle(V(101.1, -69.9, 0), V(0, 0, 1), 1),
    Part.Circle(V(85.1, -85.9, 0), V(0, 0, 1), 1),
], False)
sketch27.addConstraint([
    Sketcher.Constraint("Equal", 0, 1),
    Sketcher.Constraint("Diameter", 0, Q("2 mm")),
    Sketcher.Constraint("DistanceX", -1, 1, 0, 3, Q("101.1035 mm")),
    Sketcher.Constraint("DistanceY", 0, 3, -1, 1, Q("69.9318 mm")),
    Sketcher.Constraint("DistanceX", -1, 1, 1, 3, Q("85.1035 mm")),
    Sketcher.Constraint("DistanceY", 1, 3, -1, 1, Q("85.9318 mm")),
])
pad14 = body.newObject("PartDesign::Pad", "Pad013")
pad14.Profile = sketch27
pad14.Length = Q("0.25 in")

doc.recompute()
